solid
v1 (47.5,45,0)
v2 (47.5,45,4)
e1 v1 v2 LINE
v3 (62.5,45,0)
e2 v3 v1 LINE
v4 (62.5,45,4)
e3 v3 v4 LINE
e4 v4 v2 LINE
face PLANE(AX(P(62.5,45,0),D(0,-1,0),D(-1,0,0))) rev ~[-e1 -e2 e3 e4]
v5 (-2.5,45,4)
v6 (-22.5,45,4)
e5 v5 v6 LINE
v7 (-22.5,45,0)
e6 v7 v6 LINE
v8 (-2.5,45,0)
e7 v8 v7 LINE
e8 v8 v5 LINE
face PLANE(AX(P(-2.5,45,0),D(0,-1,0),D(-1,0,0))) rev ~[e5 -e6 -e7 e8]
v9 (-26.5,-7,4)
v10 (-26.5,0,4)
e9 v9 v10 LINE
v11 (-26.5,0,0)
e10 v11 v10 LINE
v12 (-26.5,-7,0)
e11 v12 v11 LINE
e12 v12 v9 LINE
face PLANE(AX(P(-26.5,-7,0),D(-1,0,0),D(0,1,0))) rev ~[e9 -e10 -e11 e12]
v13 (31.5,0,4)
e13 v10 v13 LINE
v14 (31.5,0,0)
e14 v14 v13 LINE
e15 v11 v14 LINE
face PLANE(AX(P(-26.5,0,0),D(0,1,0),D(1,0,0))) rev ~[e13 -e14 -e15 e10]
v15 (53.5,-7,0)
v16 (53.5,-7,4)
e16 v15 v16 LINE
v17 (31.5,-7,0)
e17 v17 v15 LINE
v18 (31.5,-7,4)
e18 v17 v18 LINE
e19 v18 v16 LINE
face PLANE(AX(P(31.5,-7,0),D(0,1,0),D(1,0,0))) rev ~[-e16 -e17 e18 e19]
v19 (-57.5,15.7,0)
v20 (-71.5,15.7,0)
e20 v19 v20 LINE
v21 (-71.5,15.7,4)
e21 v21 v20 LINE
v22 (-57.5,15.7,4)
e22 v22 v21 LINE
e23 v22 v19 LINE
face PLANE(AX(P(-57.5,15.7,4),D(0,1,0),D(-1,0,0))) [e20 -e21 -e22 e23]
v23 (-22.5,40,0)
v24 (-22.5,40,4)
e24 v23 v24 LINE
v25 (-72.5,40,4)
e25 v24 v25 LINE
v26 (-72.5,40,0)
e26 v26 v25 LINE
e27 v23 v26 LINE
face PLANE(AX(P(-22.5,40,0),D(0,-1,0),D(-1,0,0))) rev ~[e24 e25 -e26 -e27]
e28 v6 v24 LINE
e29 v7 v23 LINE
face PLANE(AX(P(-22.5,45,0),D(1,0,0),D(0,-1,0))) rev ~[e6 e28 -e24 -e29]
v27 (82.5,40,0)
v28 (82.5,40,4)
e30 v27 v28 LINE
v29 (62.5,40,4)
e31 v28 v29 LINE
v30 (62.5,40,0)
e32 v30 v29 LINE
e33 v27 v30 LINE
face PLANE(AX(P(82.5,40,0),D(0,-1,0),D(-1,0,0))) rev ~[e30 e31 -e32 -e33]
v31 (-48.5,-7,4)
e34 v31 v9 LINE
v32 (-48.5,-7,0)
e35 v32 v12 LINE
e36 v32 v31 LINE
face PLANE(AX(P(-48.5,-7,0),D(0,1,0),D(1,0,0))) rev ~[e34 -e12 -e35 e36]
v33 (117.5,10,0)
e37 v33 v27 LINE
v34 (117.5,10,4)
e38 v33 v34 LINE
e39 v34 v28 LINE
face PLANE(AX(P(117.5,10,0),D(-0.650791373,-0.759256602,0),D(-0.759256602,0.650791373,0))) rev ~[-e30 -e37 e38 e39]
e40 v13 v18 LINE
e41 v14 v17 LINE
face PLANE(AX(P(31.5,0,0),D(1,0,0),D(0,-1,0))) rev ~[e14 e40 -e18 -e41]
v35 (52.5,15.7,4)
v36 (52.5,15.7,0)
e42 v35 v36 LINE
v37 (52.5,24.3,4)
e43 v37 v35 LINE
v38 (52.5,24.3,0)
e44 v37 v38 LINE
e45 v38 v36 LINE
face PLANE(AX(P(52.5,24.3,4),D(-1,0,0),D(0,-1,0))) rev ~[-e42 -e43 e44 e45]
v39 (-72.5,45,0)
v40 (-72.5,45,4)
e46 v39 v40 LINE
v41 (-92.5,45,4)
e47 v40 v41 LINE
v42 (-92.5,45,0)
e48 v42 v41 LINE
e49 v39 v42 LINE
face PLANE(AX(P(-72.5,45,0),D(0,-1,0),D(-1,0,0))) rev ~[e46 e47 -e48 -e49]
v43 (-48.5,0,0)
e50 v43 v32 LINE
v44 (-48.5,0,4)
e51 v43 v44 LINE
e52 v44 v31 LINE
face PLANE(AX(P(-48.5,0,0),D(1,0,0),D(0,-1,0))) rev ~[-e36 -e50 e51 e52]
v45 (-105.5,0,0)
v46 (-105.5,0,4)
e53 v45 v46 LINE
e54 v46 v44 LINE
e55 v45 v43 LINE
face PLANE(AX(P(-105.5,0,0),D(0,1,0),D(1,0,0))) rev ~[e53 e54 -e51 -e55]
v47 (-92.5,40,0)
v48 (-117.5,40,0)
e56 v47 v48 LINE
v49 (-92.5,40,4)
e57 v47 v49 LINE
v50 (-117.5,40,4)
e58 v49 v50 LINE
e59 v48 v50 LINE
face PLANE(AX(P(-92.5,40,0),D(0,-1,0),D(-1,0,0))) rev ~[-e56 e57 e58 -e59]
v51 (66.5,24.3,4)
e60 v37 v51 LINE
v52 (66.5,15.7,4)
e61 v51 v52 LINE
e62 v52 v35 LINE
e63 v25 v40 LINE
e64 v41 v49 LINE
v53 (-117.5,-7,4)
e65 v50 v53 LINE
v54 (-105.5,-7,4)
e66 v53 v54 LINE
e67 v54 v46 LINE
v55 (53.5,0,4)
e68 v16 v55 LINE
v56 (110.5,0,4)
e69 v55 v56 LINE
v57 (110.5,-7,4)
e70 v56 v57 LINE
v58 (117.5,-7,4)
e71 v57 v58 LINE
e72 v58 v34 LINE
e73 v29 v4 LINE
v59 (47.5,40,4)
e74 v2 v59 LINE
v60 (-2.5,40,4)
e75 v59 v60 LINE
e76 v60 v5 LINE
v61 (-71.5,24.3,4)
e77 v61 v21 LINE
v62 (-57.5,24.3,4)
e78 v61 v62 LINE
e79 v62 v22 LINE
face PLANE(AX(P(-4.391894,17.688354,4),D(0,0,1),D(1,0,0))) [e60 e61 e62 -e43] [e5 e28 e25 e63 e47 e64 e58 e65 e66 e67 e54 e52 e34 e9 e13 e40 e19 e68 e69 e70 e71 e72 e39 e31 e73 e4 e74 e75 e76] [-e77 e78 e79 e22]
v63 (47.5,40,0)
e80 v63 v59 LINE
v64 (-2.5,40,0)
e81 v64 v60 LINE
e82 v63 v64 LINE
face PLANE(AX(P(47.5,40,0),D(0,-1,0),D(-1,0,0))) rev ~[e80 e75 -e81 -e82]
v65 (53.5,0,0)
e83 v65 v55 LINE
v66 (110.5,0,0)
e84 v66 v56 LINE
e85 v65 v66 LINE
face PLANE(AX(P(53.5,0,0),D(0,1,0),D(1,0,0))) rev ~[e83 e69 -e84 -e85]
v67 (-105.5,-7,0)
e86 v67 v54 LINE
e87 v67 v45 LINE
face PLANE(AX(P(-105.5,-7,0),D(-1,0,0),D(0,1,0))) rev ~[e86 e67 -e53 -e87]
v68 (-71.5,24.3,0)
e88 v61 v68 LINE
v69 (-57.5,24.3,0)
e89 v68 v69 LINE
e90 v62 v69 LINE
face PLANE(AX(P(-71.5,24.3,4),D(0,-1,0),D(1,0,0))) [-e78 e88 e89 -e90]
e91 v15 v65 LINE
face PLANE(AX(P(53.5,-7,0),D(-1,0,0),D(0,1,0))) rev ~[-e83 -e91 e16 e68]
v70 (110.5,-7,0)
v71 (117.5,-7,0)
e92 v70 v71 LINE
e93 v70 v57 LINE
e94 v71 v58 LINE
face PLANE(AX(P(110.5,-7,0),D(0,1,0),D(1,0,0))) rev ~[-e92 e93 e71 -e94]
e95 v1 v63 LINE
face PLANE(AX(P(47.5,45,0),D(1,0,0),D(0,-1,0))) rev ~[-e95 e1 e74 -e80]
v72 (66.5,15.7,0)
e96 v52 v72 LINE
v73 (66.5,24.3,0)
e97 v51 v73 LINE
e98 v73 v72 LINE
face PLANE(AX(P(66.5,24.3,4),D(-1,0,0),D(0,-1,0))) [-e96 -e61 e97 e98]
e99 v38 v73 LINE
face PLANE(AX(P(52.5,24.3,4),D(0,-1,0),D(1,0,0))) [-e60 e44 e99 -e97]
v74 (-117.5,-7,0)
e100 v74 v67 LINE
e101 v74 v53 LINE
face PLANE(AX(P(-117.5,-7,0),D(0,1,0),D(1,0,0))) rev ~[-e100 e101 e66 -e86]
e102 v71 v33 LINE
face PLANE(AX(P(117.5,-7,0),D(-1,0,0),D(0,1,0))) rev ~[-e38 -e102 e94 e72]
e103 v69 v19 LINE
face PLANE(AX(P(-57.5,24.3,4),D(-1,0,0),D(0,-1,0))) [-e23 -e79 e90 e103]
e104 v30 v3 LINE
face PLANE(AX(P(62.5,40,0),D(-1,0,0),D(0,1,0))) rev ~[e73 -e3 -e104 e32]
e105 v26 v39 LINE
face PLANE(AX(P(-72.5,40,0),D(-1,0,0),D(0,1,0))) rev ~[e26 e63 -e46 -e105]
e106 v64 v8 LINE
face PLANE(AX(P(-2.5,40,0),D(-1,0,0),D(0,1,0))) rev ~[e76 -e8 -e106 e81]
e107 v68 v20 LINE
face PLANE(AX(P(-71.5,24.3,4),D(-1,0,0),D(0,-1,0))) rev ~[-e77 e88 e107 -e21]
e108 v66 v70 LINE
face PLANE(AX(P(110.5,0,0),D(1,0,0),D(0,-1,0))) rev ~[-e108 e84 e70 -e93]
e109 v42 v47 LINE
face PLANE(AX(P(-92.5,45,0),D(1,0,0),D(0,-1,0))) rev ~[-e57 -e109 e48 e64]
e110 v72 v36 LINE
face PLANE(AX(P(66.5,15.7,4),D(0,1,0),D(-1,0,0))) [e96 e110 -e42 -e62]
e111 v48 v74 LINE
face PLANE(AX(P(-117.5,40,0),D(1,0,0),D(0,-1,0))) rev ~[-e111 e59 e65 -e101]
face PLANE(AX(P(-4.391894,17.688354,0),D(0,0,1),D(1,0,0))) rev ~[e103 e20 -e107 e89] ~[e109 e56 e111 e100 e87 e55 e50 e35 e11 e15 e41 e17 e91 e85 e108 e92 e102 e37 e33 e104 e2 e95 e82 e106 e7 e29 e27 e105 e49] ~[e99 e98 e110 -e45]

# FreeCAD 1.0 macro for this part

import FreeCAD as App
import Part
import Sketcher

V = App.Vector
Q = App.Units.Quantity


def add_polygon(sketch, points):
    """Adds a closed chain of lines whose ends are joined by coincident constraints."""
    first, n = sketch.GeometryCount, len(points)
    for a, b in zip(points, points[1:] + points[:1]):
        sketch.addGeometry(Part.LineSegment(App.Vector(*a, 0), App.Vector(*b, 0)), False)
    for i in range(n):
        sketch.addConstraint(Sketcher.Constraint("Coincident", first + i, 2, first + (i + 1) % n, 1))

doc = App.newDocument("Part")
body = doc.addObject("PartDesign::Body", "Body")

# Sketch on XY plane
sketch1 = body.newObject("Sketcher::SketchObject", "Sketch")
sketch1.AttachmentSupport = (doc.getObject("XY_Plane"), [""])
sketch1.MapMode = "FlatFace"
add_polygon(sketch1, [(-105.5, 0), (-48.5, 0), (-48.5, -7), (-26.5, -7), (-26.5, 0), (31.5, 0), (31.5, -7), (53.5, -7), (53.5, 0), (110.5, 0), (110.5, -7), (117.5, -7), (117.5, 10), (82.5, 40), (62.5, 40), (62.5, 45), (47.5, 45), (47.5, 40), (-2.5, 40), (-2.5, 45), (-22.5, 45), (-22.5, 40), (-72.5, 40), (-72.5, 45), (-92.5, 45), (-92.5, 40), (-117.5, 40), (-117.5, -7), (-105.5, -7)])  # lines 0-28
sketch1.addConstraint(Sketcher.Constraint("Horizontal", 0))
sketch1.addConstraint(Sketcher.Constraint("Vertical", 1))
sketch1.addConstraint(Sketcher.Constraint("Horizontal", 2))
sketch1.addConstraint(Sketcher.Constraint("Vertical", 3))
sketch1.addConstraint(Sketcher.Constraint("Horizontal", 4))
sketch1.addConstraint(Sketcher.Constraint("Vertical", 5))
sketch1.addConstraint(Sketcher.Constraint("Horizontal", 6))
sketch1.addConstraint(Sketcher.Constraint("Vertical", 7))
sketch1.addConstraint(Sketcher.Constraint("Horizontal", 8))
sketch1.addConstraint(Sketcher.Constraint("Vertical", 9))
sketch1.addConstraint(Sketcher.Constraint("Horizontal", 10))
sketch1.addConstraint(Sketcher.Constraint("Vertical", 11))
sketch1.addConstraint(Sketcher.Constraint("Horizontal", 13))
sketch1.addConstraint(Sketcher.Constraint("Vertical", 14))
sketch1.addConstraint(Sketcher.Constraint("Horizontal", 15))
sketch1.addConstraint(Sketcher.Constraint("Vertical", 16))
sketch1.addConstraint(Sketcher.Constraint("Horizontal", 17))
sketch1.addConstraint(Sketcher.Constraint("Vertical", 18))
sketch1.addConstraint(Sketcher.Constraint("Horizontal", 19))
sketch1.addConstraint(Sketcher.Constraint("Vertical", 20))
sketch1.addConstraint(Sketcher.Constraint("Horizontal", 21))
sketch1.addConstraint(Sketcher.Constraint("Vertical", 22))
sketch1.addConstraint(Sketcher.Constraint("Horizontal", 23))
sketch1.addConstraint(Sketcher.Constraint("Vertical", 24))
sketch1.addConstraint(Sketcher.Constraint("Horizontal", 25))
sketch1.addConstraint(Sketcher.Constraint("Vertical", 26))
sketch1.addConstraint(Sketcher.Constraint("Horizontal", 27))
sketch1.addConstraint(Sketcher.Constraint("Vertical", 28))
sketch1.addConstraint(Sketcher.Constraint("Symmetric", 10, 2, 26, 2, -2))
sketch1.addConstraint(Sketcher.Constraint("PointOnObject", 0, 2, -1))
sketch1.addConstraint(Sketcher.Constraint("PointOnObject", 3, 2, -1))
sketch1.addConstraint(Sketcher.Constraint("PointOnObject", 7, 2, -1))
sketch1.addConstraint(Sketcher.Constraint("Horizontal", 2, 2, 5, 2))
sketch1.addConstraint(Sketcher.Constraint("Horizontal", 6, 2, 9, 2))
sketch1.addConstraint(Sketcher.Constraint("Horizontal", 13, 2, 16, 2))
sketch1.addConstraint(Sketcher.Constraint("Horizontal", 15, 2, 18, 2))
sketch1.addConstraint(Sketcher.Constraint("Horizontal", 17, 2, 20, 2))
sketch1.addConstraint(Sketcher.Constraint("Horizontal", 19, 2, 22, 2))
sketch1.addConstraint(Sketcher.Constraint("Horizontal", 21, 2, 24, 2))
sketch1.addConstraint(Sketcher.Constraint("Equal", 2, 6))
sketch1.addConstraint(Sketcher.Constraint("Equal", 0, 8))
sketch1.addConstraint(Sketcher.Constraint("Equal", 13, 19))
sketch1.addConstraint(Sketcher.Constraint("Equal", 17, 21))
sketch1.addConstraint(Sketcher.Constraint("Equal", 19, 23))
sketch1.addConstraint(Sketcher.Constraint("Equal", 10, 1))
sketch1.addConstraint(Sketcher.Constraint("DistanceX", 0, 1, 0, 2, Q("57 mm")))
sketch1.addConstraint(Sketcher.Constraint("DistanceX", 2, 1, 2, 2, Q("22 mm")))
sketch1.addConstraint(Sketcher.Constraint("DistanceX", 4, 1, 4, 2, Q("58 mm")))
sketch1.addConstraint(Sketcher.Constraint("DistanceX", 10, 1, 10, 2, Q("7 mm")))
sketch1.addConstraint(Sketcher.Constraint("DistanceX", 13, 2, 13, 1, Q("20 mm")))
sketch1.addConstraint(Sketcher.Constraint("DistanceX", 15, 2, 15, 1, Q("15 mm")))
sketch1.addConstraint(Sketcher.Constraint("DistanceX", 17, 2, 17, 1, Q("50 mm")))
sketch1.addConstraint(Sketcher.Constraint("DistanceX", 25, 2, 25, 1, Q("25 mm")))
sketch1.addConstraint(Sketcher.Constraint("DistanceX", 27, 1, 27, 2, Q("12 mm")))
sketch1.addConstraint(Sketcher.Constraint("DistanceY", 11, 1, 11, 2, Q("17 mm")))
sketch1.addConstraint(Sketcher.Constraint("DistanceY", 14, 1, 14, 2, Q("5 mm")))
sketch1.addConstraint(Sketcher.Constraint("DistanceY", 26, 2, 26, 1, Q("47 mm")))
pad1 = body.newObject("PartDesign::Pad", "Pad")
pad1.Profile = sketch1
pad1.Length = 4

# Sketch on XY plane
sketch2 = body.newObject("Sketcher::SketchObject", "Sketch001")
sketch2.AttachmentSupport = (doc.getObject("XY_Plane"), [""])
sketch2.MapMode = "FlatFace"
sketch2.AttachmentOffset = App.Placement(V(0, 0, 4), App.Rotation())
add_polygon(sketch2, [(-71.5, 24.3), (-71.5, 15.7), (-57.5, 15.7), (-57.5, 24.3)])  # lines 0-3
add_polygon(sketch2, [(52.5, 24.3), (52.5, 15.7), (66.5, 15.7), (66.5, 24.3)])  # lines 4-7
sketch2.addConstraint(Sketcher.Constraint("Vertical", 0))
sketch2.addConstraint(Sketcher.Constraint("Horizontal", 1))
sketch2.addConstraint(Sketcher.Constraint("Vertical", 2))
sketch2.addConstraint(Sketcher.Constraint("Horizontal", 3))
sketch2.addConstraint(Sketcher.Constraint("Vertical", 4))
sketch2.addConstraint(Sketcher.Constraint("Horizontal", 5))
sketch2.addConstraint(Sketcher.Constraint("Vertical", 6))
sketch2.addConstraint(Sketcher.Constraint("Horizontal", 7))
sketch2.addConstraint(Sketcher.Constraint("Horizontal", 1, 2, 4, 2))
sketch2.addConstraint(Sketcher.Constraint("Horizontal", 3, 2, 6, 2))
sketch2.addConstraint(Sketcher.Constraint("Equal", 3, 5))
sketch2.addConstraint(Sketcher.Constraint("DistanceX", 1, 1, 1, 2, Q("14 mm")))
sketch2.addConstraint(Sketcher.Constraint("DistanceY", 0, 2, 0, 1, Q("8.6 mm")))
sketch2.addConstraint(Sketcher.Constraint("DistanceX", 1, 2, 4, 2, Q("110 mm")))
sketch2.addConstraint(Sketcher.Constraint("DistanceX", 0, 2, -1, 1, Q("71.5 mm")))
sketch2.addConstraint(Sketcher.Constraint("DistanceY", -1, 1, 0, 2, Q("15.7 mm")))
pocket1 = body.newObject("PartDesign::Pocket", "Pocket")
pocket1.Profile = sketch2
pocket1.Length = 4

doc.recompute()
